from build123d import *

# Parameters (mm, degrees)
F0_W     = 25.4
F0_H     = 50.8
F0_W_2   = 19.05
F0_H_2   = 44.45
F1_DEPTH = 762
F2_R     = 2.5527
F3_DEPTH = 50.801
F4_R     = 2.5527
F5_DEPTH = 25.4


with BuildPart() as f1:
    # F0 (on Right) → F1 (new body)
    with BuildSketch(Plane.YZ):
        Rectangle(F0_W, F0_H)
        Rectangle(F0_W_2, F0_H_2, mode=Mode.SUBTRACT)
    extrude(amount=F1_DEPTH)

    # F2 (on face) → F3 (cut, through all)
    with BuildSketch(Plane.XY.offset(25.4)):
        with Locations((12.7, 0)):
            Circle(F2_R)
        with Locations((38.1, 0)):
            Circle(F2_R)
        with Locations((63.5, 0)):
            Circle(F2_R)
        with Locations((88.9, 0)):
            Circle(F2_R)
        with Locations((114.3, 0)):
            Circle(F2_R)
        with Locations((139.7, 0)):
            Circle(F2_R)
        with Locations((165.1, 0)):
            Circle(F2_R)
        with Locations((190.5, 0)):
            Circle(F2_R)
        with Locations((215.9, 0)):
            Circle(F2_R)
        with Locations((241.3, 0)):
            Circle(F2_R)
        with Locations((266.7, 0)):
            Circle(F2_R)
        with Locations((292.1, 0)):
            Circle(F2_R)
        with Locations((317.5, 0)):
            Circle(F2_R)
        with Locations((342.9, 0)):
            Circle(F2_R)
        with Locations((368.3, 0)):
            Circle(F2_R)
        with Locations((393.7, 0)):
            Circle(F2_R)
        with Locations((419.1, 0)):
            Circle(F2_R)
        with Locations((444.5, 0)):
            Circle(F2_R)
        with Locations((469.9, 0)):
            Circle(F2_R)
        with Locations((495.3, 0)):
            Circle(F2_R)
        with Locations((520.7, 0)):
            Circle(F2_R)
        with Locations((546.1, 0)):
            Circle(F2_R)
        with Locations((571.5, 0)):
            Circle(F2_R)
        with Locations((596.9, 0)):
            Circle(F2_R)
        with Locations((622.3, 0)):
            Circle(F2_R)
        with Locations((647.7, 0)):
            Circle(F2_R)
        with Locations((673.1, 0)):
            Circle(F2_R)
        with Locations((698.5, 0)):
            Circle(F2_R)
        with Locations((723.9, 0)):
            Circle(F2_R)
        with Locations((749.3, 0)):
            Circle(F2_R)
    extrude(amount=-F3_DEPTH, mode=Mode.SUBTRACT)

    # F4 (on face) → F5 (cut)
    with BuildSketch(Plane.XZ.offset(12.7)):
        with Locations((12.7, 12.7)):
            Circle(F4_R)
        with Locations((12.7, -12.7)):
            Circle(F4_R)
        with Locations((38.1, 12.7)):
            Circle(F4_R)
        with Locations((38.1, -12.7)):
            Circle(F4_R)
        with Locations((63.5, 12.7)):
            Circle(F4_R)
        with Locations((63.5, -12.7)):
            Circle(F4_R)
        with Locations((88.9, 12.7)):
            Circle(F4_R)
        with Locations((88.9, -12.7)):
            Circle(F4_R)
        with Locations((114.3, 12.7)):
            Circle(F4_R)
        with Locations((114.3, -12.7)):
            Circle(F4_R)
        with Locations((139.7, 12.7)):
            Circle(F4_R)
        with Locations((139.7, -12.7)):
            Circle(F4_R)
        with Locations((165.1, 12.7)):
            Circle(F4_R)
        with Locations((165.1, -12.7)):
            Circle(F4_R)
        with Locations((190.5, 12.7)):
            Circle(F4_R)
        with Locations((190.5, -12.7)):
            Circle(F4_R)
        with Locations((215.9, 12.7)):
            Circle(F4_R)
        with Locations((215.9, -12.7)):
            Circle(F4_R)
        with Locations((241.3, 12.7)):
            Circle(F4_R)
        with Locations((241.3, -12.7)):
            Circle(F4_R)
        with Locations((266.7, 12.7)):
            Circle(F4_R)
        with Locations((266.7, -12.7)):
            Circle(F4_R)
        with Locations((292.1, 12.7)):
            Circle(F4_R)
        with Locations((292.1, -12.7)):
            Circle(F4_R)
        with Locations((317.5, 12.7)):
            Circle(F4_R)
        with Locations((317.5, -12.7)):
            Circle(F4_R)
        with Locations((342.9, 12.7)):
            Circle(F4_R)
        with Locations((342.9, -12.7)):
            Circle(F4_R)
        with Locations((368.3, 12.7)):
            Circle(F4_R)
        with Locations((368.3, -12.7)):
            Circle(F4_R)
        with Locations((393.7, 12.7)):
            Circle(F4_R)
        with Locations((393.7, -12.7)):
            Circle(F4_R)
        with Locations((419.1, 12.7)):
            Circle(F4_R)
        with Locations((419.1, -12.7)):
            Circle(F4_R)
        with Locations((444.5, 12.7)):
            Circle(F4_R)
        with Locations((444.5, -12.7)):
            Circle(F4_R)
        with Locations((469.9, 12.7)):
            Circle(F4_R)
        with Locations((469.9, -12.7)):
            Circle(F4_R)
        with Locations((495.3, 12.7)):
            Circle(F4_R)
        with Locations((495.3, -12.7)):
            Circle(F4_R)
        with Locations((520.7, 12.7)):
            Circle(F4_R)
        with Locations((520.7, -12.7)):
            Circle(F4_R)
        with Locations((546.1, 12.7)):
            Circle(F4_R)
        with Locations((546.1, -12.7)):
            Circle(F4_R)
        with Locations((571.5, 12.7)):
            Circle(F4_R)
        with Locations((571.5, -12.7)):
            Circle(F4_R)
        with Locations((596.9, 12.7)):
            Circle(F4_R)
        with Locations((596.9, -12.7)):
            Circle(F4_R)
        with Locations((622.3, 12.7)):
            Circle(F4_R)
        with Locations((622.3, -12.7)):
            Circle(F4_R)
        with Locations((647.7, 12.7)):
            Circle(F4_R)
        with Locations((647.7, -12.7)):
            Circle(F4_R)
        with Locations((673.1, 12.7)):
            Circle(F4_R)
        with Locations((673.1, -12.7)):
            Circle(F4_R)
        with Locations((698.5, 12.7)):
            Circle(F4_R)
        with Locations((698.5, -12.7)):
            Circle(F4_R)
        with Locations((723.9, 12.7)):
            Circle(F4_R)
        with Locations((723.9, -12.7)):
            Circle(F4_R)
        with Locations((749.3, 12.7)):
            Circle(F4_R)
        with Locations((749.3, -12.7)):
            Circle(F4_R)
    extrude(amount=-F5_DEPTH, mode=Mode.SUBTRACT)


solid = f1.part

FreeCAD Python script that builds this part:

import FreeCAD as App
import Part
import Sketcher

V = App.Vector
Q = App.Units.Quantity


def add_polygon(sketch, points):
    """Adds a closed chain of lines whose ends are joined by coincident constraints."""
    first, n = sketch.GeometryCount, len(points)
    for a, b in zip(points, points[1:] + points[:1]):
        sketch.addGeometry(Part.LineSegment(App.Vector(*a, 0), App.Vector(*b, 0)), False)
    for i in range(n):
        sketch.addConstraint(Sketcher.Constraint("Coincident", first + i, 2, first + (i + 1) % n, 1))

doc = App.newDocument("Part")
params = doc.addObject("Spreadsheet::Sheet", "Params")
for row, (alias, value) in enumerate([
    ("sketch1_width", "1 in"),
    ("sketch1_height", "2 in"),
    ("sketch1_width2", "0.75 in"),
    ("sketch1_height2", "1.75 in"),
    ("pad1_length", "30 in"),
    ("sketch2_diameter", "0.201 in"),
    ("sketch3_diameter", "0.201 in"),
    ("pocket2_length", "1 in"),
], start=1):
    params.set(f"A{row}", alias)
    params.set(f"B{row}", "=" + value)
    params.setAlias(f"B{row}", alias)

body = doc.addObject("PartDesign::Body", "Body")

# Sketch on YZ plane
sketch1 = body.newObject("Sketcher::SketchObject", "Sketch")
sketch1.AttachmentSupport = (doc.getObject("YZ_Plane"), [""])
sketch1.MapMode = "FlatFace"
add_polygon(sketch1, [(-13, 25), (-13, -25), (13, -25), (13, 25)])  # lines 0-3
add_polygon(sketch1, [(10, -22), (-10, -22), (-10, 22), (10, 22)])  # lines 4-7
sketch1.addConstraint(Sketcher.Constraint("Vertical", 0))
sketch1.addConstraint(Sketcher.Constraint("Horizontal", 1))
sketch1.addConstraint(Sketcher.Constraint("Vertical", 2))
sketch1.addConstraint(Sketcher.Constraint("Horizontal", 3))
sketch1.addConstraint(Sketcher.Constraint("Horizontal", 4))
sketch1.addConstraint(Sketcher.Constraint("Vertical", 5))
sketch1.addConstraint(Sketcher.Constraint("Horizontal", 6))
sketch1.addConstraint(Sketcher.Constraint("Vertical", 7))
sketch1.addConstraint(Sketcher.Constraint("Symmetric", 0, 2, 2, 2, -1, 1))
sketch1.addConstraint(Sketcher.Constraint("Symmetric", 4, 2, 6, 2, -1, 1))
sketch1.addConstraint(Sketcher.Constraint("DistanceX", 1, 1, 1, 2, Q("1 in")))
sketch1.addConstraint(Sketcher.Constraint("DistanceY", 0, 2, 0, 1, Q("2 in")))
sketch1.addConstraint(Sketcher.Constraint("DistanceX", 4, 2, 4, 1, Q("0.75 in")))
sketch1.addConstraint(Sketcher.Constraint("DistanceY", 5, 1, 5, 2, Q("1.75 in")))
sketch1.setExpression("Constraints[18]", "Params.sketch1_width")
sketch1.setExpression("Constraints[19]", "Params.sketch1_height")
sketch1.setExpression("Constraints[20]", "Params.sketch1_width2")
sketch1.setExpression("Constraints[21]", "Params.sketch1_height2")
pad1 = body.newObject("PartDesign::Pad", "Pad")
pad1.Profile = sketch1
pad1.setExpression("Length", "Params.pad1_length")

# Sketch on XY plane
sketch2 = body.newObject("Sketcher::SketchObject", "Sketch001")
sketch2.AttachmentSupport = (doc.getObject("XY_Plane"), [""])
sketch2.MapMode = "FlatFace"
sketch2.AttachmentOffset = App.Placement(V(0, 0, 1 * 25.4), App.Rotation())
sketch2.addGeometry(Part.Circle(V(12.7, 0, 0), V(0, 0, 1), 2.6), False)
sketch2.addGeometry(Part.Circle(V(38.1, 0, 0), V(0, 0, 1), 2.6), False)
sketch2.addGeometry(Part.Circle(V(63.5, 0, 0), V(0, 0, 1), 2.6), False)
sketch2.addGeometry(Part.Circle(V(88.9, 0, 0), V(0, 0, 1), 2.6), False)
sketch2.addGeometry(Part.Circle(V(114.3, 0, 0), V(0, 0, 1), 2.6), False)
sketch2.addGeometry(Part.Circle(V(139.7, 0, 0), V(0, 0, 1), 2.6), False)
sketch2.addGeometry(Part.Circle(V(165.1, 0, 0), V(0, 0, 1), 2.6), False)
sketch2.addGeometry(Part.Circle(V(190.5, 0, 0), V(0, 0, 1), 2.6), False)
sketch2.addGeometry(Part.Circle(V(215.9, 0, 0), V(0, 0, 1), 2.6), False)
sketch2.addGeometry(Part.Circle(V(241.3, 0, 0), V(0, 0, 1), 2.6), False)
sketch2.addGeometry(Part.Circle(V(266.7, 0, 0), V(0, 0, 1), 2.6), False)
sketch2.addGeometry(Part.Circle(V(292.1, 0, 0), V(0, 0, 1), 2.6), False)
sketch2.addGeometry(Part.Circle(V(317.5, 0, 0), V(0, 0, 1), 2.6), False)
sketch2.addGeometry(Part.Circle(V(342.9, 0, 0), V(0, 0, 1), 2.6), False)
sketch2.addGeometry(Part.Circle(V(368.3, 0, 0), V(0, 0, 1), 2.6), False)
sketch2.addGeometry(Part.Circle(V(393.7, 0, 0), V(0, 0, 1), 2.6), False)
sketch2.addGeometry(Part.Circle(V(419.1, 0, 0), V(0, 0, 1), 2.6), False)
sketch2.addGeometry(Part.Circle(V(444.5, 0, 0), V(0, 0, 1), 2.6), False)
sketch2.addGeometry(Part.Circle(V(469.9, 0, 0), V(0, 0, 1), 2.6), False)
sketch2.addGeometry(Part.Circle(V(495.3, 0, 0), V(0, 0, 1), 2.6), False)
sketch2.addGeometry(Part.Circle(V(520.7, 0, 0), V(0, 0, 1), 2.6), False)
sketch2.addGeometry(Part.Circle(V(546.1, 0, 0), V(0, 0, 1), 2.6), False)
sketch2.addGeometry(Part.Circle(V(571.5, 0, 0), V(0, 0, 1), 2.6), False)
sketch2.addGeometry(Part.Circle(V(596.9, 0, 0), V(0, 0, 1), 2.6), False)
sketch2.addGeometry(Part.Circle(V(622.3, 0, 0), V(0, 0, 1), 2.6), False)
sketch2.addGeometry(Part.Circle(V(647.7, 0, 0), V(0, 0, 1), 2.6), False)
sketch2.addGeometry(Part.Circle(V(673.1, 0, 0), V(0, 0, 1), 2.6), False)
sketch2.addGeometry(Part.Circle(V(698.5, 0, 0), V(0, 0, 1), 2.6), False)
sketch2.addGeometry(Part.Circle(V(723.9, 0, 0), V(0, 0, 1), 2.6), False)
sketch2.addGeometry(Part.Circle(V(749.3, 0, 0), V(0, 0, 1), 2.6), False)
sketch2.addConstraint(Sketcher.Constraint("Equal", 0, 1))
sketch2.addConstraint(Sketcher.Constraint("Equal", 1, 2))
sketch2.addConstraint(Sketcher.Constraint("Equal", 2, 3))
sketch2.addConstraint(Sketcher.Constraint("Equal", 3, 4))
sketch2.addConstraint(Sketcher.Constraint("Equal", 4, 5))
sketch2.addConstraint(Sketcher.Constraint("Equal", 5, 6))
sketch2.addConstraint(Sketcher.Constraint("Equal", 6, 7))
sketch2.addConstraint(Sketcher.Constraint("Equal", 7, 8))
sketch2.addConstraint(Sketcher.Constraint("Equal", 8, 9))
sketch2.addConstraint(Sketcher.Constraint("Equal", 9, 10))
sketch2.addConstraint(Sketcher.Constraint("Equal", 10, 11))
sketch2.addConstraint(Sketcher.Constraint("Equal", 11, 12))
sketch2.addConstraint(Sketcher.Constraint("Equal", 12, 13))
sketch2.addConstraint(Sketcher.Constraint("Equal", 13, 14))
sketch2.addConstraint(Sketcher.Constraint("Equal", 14, 15))
sketch2.addConstraint(Sketcher.Constraint("Equal", 15, 16))
sketch2.addConstraint(Sketcher.Constraint("Equal", 16, 17))
sketch2.addConstraint(Sketcher.Constraint("Equal", 17, 18))
sketch2.addConstraint(Sketcher.Constraint("Equal", 18, 19))
sketch2.addConstraint(Sketcher.Constraint("Equal", 19, 20))
sketch2.addConstraint(Sketcher.Constraint("Equal", 20, 21))
sketch2.addConstraint(Sketcher.Constraint("Equal", 21, 22))
sketch2.addConstraint(Sketcher.Constraint("Equal", 22, 23))
sketch2.addConstraint(Sketcher.Constraint("Equal", 23, 24))
sketch2.addConstraint(Sketcher.Constraint("Equal", 24, 25))
sketch2.addConstraint(Sketcher.Constraint("Equal", 25, 26))
sketch2.addConstraint(Sketcher.Constraint("Equal", 26, 27))
sketch2.addConstraint(Sketcher.Constraint("Equal", 27, 28))
sketch2.addConstraint(Sketcher.Constraint("Equal", 28, 29))
sketch2.addConstraint(Sketcher.Constraint("PointOnObject", 0, 3, -1))
sketch2.addConstraint(Sketcher.Constraint("PointOnObject", 1, 3, -1))
sketch2.addConstraint(Sketcher.Constraint("PointOnObject", 2, 3, -1))
sketch2.addConstraint(Sketcher.Constraint("PointOnObject", 3, 3, -1))
sketch2.addConstraint(Sketcher.Constraint("PointOnObject", 4, 3, -1))
sketch2.addConstraint(Sketcher.Constraint("PointOnObject", 5, 3, -1))
sketch2.addConstraint(Sketcher.Constraint("PointOnObject", 6, 3, -1))
sketch2.addConstraint(Sketcher.Constraint("PointOnObject", 7, 3, -1))
sketch2.addConstraint(Sketcher.Constraint("PointOnObject", 8, 3, -1))
sketch2.addConstraint(Sketcher.Constraint("PointOnObject", 9, 3, -1))
sketch2.addConstraint(Sketcher.Constraint("PointOnObject", 10, 3, -1))
sketch2.addConstraint(Sketcher.Constraint("PointOnObject", 11, 3, -1))
sketch2.addConstraint(Sketcher.Constraint("PointOnObject", 12, 3, -1))
sketch2.addConstraint(Sketcher.Constraint("PointOnObject", 13, 3, -1))
sketch2.addConstraint(Sketcher.Constraint("PointOnObject", 14, 3, -1))
sketch2.addConstraint(Sketcher.Constraint("PointOnObject", 15, 3, -1))
sketch2.addConstraint(Sketcher.Constraint("PointOnObject", 16, 3, -1))
sketch2.addConstraint(Sketcher.Constraint("PointOnObject", 17, 3, -1))
sketch2.addConstraint(Sketcher.Constraint("PointOnObject", 18, 3, -1))
sketch2.addConstraint(Sketcher.Constraint("PointOnObject", 19, 3, -1))
sketch2.addConstraint(Sketcher.Constraint("PointOnObject", 20, 3, -1))
sketch2.addConstraint(Sketcher.Constraint("PointOnObject", 21, 3, -1))
sketch2.addConstraint(Sketcher.Constraint("PointOnObject", 22, 3, -1))
sketch2.addConstraint(Sketcher.Constraint("PointOnObject", 23, 3, -1))
sketch2.addConstraint(Sketcher.Constraint("PointOnObject", 24, 3, -1))
sketch2.addConstraint(Sketcher.Constraint("PointOnObject", 25, 3, -1))
sketch2.addConstraint(Sketcher.Constraint("PointOnObject", 26, 3, -1))
sketch2.addConstraint(Sketcher.Constraint("PointOnObject", 27, 3, -1))
sketch2.addConstraint(Sketcher.Constraint("PointOnObject", 28, 3, -1))
sketch2.addConstraint(Sketcher.Constraint("PointOnObject", 29, 3, -1))
sketch2.addConstraint(Sketcher.Constraint("Diameter", 0, Q("0.201 in")))
sketch2.addConstraint(Sketcher.Constraint("DistanceX", 0, 3, 1, 3, Q("1 in")))
sketch2.addConstraint(Sketcher.Constraint("DistanceX", 1, 3, 2, 3, Q("1 in")))
sketch2.addConstraint(Sketcher.Constraint("DistanceX", 2, 3, 3, 3, Q("1 in")))
sketch2.addConstraint(Sketcher.Constraint("DistanceX", 3, 3, 4, 3, Q("1 in")))
sketch2.addConstraint(Sketcher.Constraint("DistanceX", 4, 3, 5, 3, Q("1 in")))
sketch2.addConstraint(Sketcher.Constraint("DistanceX", 5, 3, 6, 3, Q("1 in")))
sketch2.addConstraint(Sketcher.Constraint("DistanceX", 6, 3, 7, 3, Q("1 in")))
sketch2.addConstraint(Sketcher.Constraint("DistanceX", 7, 3, 8, 3, Q("1 in")))
sketch2.addConstraint(Sketcher.Constraint("DistanceX", 8, 3, 9, 3, Q("1 in")))
sketch2.addConstraint(Sketcher.Constraint("DistanceX", 9, 3, 10, 3, Q("1 in")))
sketch2.addConstraint(Sketcher.Constraint("DistanceX", 10, 3, 11, 3, Q("1 in")))
sketch2.addConstraint(Sketcher.Constraint("DistanceX", 11, 3, 12, 3, Q("1 in")))
sketch2.addConstraint(Sketcher.Constraint("DistanceX", 12, 3, 13, 3, Q("1 in")))
sketch2.addConstraint(Sketcher.Constraint("DistanceX", 13, 3, 14, 3, Q("1 in")))
sketch2.addConstraint(Sketcher.Constraint("DistanceX", 14, 3, 15, 3, Q("1 in")))
sketch2.addConstraint(Sketcher.Constraint("DistanceX", 15, 3, 16, 3, Q("1 in")))
sketch2.addConstraint(Sketcher.Constraint("DistanceX", 16, 3, 17, 3, Q("1 in")))
sketch2.addConstraint(Sketcher.Constraint("DistanceX", 17, 3, 18, 3, Q("1 in")))
sketch2.addConstraint(Sketcher.Constraint("DistanceX", 18, 3, 19, 3, Q("1 in")))
sketch2.addConstraint(Sketcher.Constraint("DistanceX", 19, 3, 20, 3, Q("1 in")))
sketch2.addConstraint(Sketcher.Constraint("DistanceX", 20, 3, 21, 3, Q("1 in")))
sketch2.addConstraint(Sketcher.Constraint("DistanceX", 21, 3, 22, 3, Q("1 in")))
sketch2.addConstraint(Sketcher.Constraint("DistanceX", 22, 3, 23, 3, Q("1 in")))
sketch2.addConstraint(Sketcher.Constraint("DistanceX", 23, 3, 24, 3, Q("1 in")))
sketch2.addConstraint(Sketcher.Constraint("DistanceX", 24, 3, 25, 3, Q("1 in")))
sketch2.addConstraint(Sketcher.Constraint("DistanceX", 25, 3, 26, 3, Q("1 in")))
sketch2.addConstraint(Sketcher.Constraint("DistanceX", 26, 3, 27, 3, Q("1 in")))
sketch2.addConstraint(Sketcher.Constraint("DistanceX", 27, 3, 28, 3, Q("1 in")))
sketch2.addConstraint(Sketcher.Constraint("DistanceX", 28, 3, 29, 3, Q("1 in")))
sketch2.addConstraint(Sketcher.Constraint("DistanceX", -1, 1, 0, 3, Q("0.5 in")))
sketch2.setExpression("Constraints[59]", "Params.sketch2_diameter")
pocket1 = body.newObject("PartDesign::Pocket", "Pocket")
pocket1.Profile = sketch2
pocket1.Type = "ThroughAll"

# Sketch on XZ plane
sketch3 = body.newObject("Sketcher::SketchObject", "Sketch002")
sketch3.AttachmentSupport = (doc.getObject("XZ_Plane"), [""])
sketch3.MapMode = "FlatFace"
sketch3.AttachmentOffset = App.Placement(V(0, 0, 0.5 * 25.4), App.Rotation())
sketch3.addGeometry(Part.Circle(V(12.7, 12.7, 0), V(0, 0, 1), 2.6), False)
sketch3.addGeometry(Part.Circle(V(12.7, -12.7, 0), V(0, 0, 1), 2.6), False)
sketch3.addGeometry(Part.Circle(V(38.1, 12.7, 0), V(0, 0, 1), 2.6), False)
sketch3.addGeometry(Part.Circle(V(38.1, -12.7, 0), V(0, 0, 1), 2.6), False)
sketch3.addGeometry(Part.Circle(V(63.5, 12.7, 0), V(0, 0, 1), 2.6), False)
sketch3.addGeometry(Part.Circle(V(63.5, -12.7, 0), V(0, 0, 1), 2.6), False)
sketch3.addGeometry(Part.Circle(V(88.9, 12.7, 0), V(0, 0, 1), 2.6), False)
sketch3.addGeometry(Part.Circle(V(88.9, -12.7, 0), V(0, 0, 1), 2.6), False)
sketch3.addGeometry(Part.Circle(V(114.3, 12.7, 0), V(0, 0, 1), 2.6), False)
sketch3.addGeometry(Part.Circle(V(114.3, -12.7, 0), V(0, 0, 1), 2.6), False)
sketch3.addGeometry(Part.Circle(V(139.7, 12.7, 0), V(0, 0, 1), 2.6), False)
sketch3.addGeometry(Part.Circle(V(139.7, -12.7, 0), V(0, 0, 1), 2.6), False)
sketch3.addGeometry(Part.Circle(V(165.1, 12.7, 0), V(0, 0, 1), 2.6), False)
sketch3.addGeometry(Part.Circle(V(165.1, -12.7, 0), V(0, 0, 1), 2.6), False)
sketch3.addGeometry(Part.Circle(V(190.5, 12.7, 0), V(0, 0, 1), 2.6), False)
sketch3.addGeometry(Part.Circle(V(190.5, -12.7, 0), V(0, 0, 1), 2.6), False)
sketch3.addGeometry(Part.Circle(V(215.9, 12.7, 0), V(0, 0, 1), 2.6), False)
sketch3.addGeometry(Part.Circle(V(215.9, -12.7, 0), V(0, 0, 1), 2.6), False)
sketch3.addGeometry(Part.Circle(V(241.3, 12.7, 0), V(0, 0, 1), 2.6), False)
sketch3.addGeometry(Part.Circle(V(241.3, -12.7, 0), V(0, 0, 1), 2.6), False)
sketch3.addGeometry(Part.Circle(V(266.7, 12.7, 0), V(0, 0, 1), 2.6), False)
sketch3.addGeometry(Part.Circle(V(266.7, -12.7, 0), V(0, 0, 1), 2.6), False)
sketch3.addGeometry(Part.Circle(V(292.1, 12.7, 0), V(0, 0, 1), 2.6), False)
sketch3.addGeometry(Part.Circle(V(292.1, -12.7, 0), V(0, 0, 1), 2.6), False)
sketch3.addGeometry(Part.Circle(V(317.5, 12.7, 0), V(0, 0, 1), 2.6), False)
sketch3.addGeometry(Part.Circle(V(317.5, -12.7, 0), V(0, 0, 1), 2.6), False)
sketch3.addGeometry(Part.Circle(V(342.9, 12.7, 0), V(0, 0, 1), 2.6), False)
sketch3.addGeometry(Part.Circle(V(342.9, -12.7, 0), V(0, 0, 1), 2.6), False)
sketch3.addGeometry(Part.Circle(V(368.3, 12.7, 0), V(0, 0, 1), 2.6), False)
sketch3.addGeometry(Part.Circle(V(368.3, -12.7, 0), V(0, 0, 1), 2.6), False)
sketch3.addGeometry(Part.Circle(V(393.7, 12.7, 0), V(0, 0, 1), 2.6), False)
sketch3.addGeometry(Part.Circle(V(393.7, -12.7, 0), V(0, 0, 1), 2.6), False)
sketch3.addGeometry(Part.Circle(V(419.1, 12.7, 0), V(0, 0, 1), 2.6), False)
sketch3.addGeometry(Part.Circle(V(419.1, -12.7, 0), V(0, 0, 1), 2.6), False)
sketch3.addGeometry(Part.Circle(V(444.5, 12.7, 0), V(0, 0, 1), 2.6), False)
sketch3.addGeometry(Part.Circle(V(444.5, -12.7, 0), V(0, 0, 1), 2.6), False)
sketch3.addGeometry(Part.Circle(V(469.9, 12.7, 0), V(0, 0, 1), 2.6), False)
sketch3.addGeometry(Part.Circle(V(469.9, -12.7, 0), V(0, 0, 1), 2.6), False)
sketch3.addGeometry(Part.Circle(V(495.3, 12.7, 0), V(0, 0, 1), 2.6), False)
sketch3.addGeometry(Part.Circle(V(495.3, -12.7, 0), V(0, 0, 1), 2.6), False)
sketch3.addGeometry(Part.Circle(V(520.7, 12.7, 0), V(0, 0, 1), 2.6), False)
sketch3.addGeometry(Part.Circle(V(520.7, -12.7, 0), V(0, 0, 1), 2.6), False)
sketch3.addGeometry(Part.Circle(V(546.1, 12.7, 0), V(0, 0, 1), 2.6), False)
sketch3.addGeometry(Part.Circle(V(546.1, -12.7, 0), V(0, 0, 1), 2.6), False)
sketch3.addGeometry(Part.Circle(V(571.5, 12.7, 0), V(0, 0, 1), 2.6), False)
sketch3.addGeometry(Part.Circle(V(571.5, -12.7, 0), V(0, 0, 1), 2.6), False)
sketch3.addGeometry(Part.Circle(V(596.9, 12.7, 0), V(0, 0, 1), 2.6), False)
sketch3.addGeometry(Part.Circle(V(596.9, -12.7, 0), V(0, 0, 1), 2.6), False)
sketch3.addGeometry(Part.Circle(V(622.3, 12.7, 0), V(0, 0, 1), 2.6), False)
sketch3.addGeometry(Part.Circle(V(622.3, -12.7, 0), V(0, 0, 1), 2.6), False)
sketch3.addGeometry(Part.Circle(V(647.7, 12.7, 0), V(0, 0, 1), 2.6), False)
sketch3.addGeometry(Part.Circle(V(647.7, -12.7, 0), V(0, 0, 1), 2.6), False)
sketch3.addGeometry(Part.Circle(V(673.1, 12.7, 0), V(0, 0, 1), 2.6), False)
sketch3.addGeometry(Part.Circle(V(673.1, -12.7, 0), V(0, 0, 1), 2.6), False)
sketch3.addGeometry(Part.Circle(V(698.5, 12.7, 0), V(0, 0, 1), 2.6), False)
sketch3.addGeometry(Part.Circle(V(698.5, -12.7, 0), V(0, 0, 1), 2.6), False)
sketch3.addGeometry(Part.Circle(V(723.9, 12.7, 0), V(0, 0, 1), 2.6), False)
sketch3.addGeometry(Part.Circle(V(723.9, -12.7, 0), V(0, 0, 1), 2.6), False)
sketch3.addGeometry(Part.Circle(V(749.3, 12.7, 0), V(0, 0, 1), 2.6), False)
sketch3.addGeometry(Part.Circle(V(749.3, -12.7, 0), V(0, 0, 1), 2.6), False)
sketch3.addConstraint(Sketcher.Constraint("Equal", 0, 1))
sketch3.addConstraint(Sketcher.Constraint("Equal", 1, 2))
sketch3.addConstraint(Sketcher.Constraint("Equal", 2, 3))
sketch3.addConstraint(Sketcher.Constraint("Equal", 3, 4))
sketch3.addConstraint(Sketcher.Constraint("Equal", 4, 5))
sketch3.addConstraint(Sketcher.Constraint("Equal", 5, 6))
sketch3.addConstraint(Sketcher.Constraint("Equal", 6, 7))
sketch3.addConstraint(Sketcher.Constraint("Equal", 7, 8))
sketch3.addConstraint(Sketcher.Constraint("Equal", 8, 9))
sketch3.addConstraint(Sketcher.Constraint("Equal", 9, 10))
sketch3.addConstraint(Sketcher.Constraint("Equal", 10, 11))
sketch3.addConstraint(Sketcher.Constraint("Equal", 11, 12))
sketch3.addConstraint(Sketcher.Constraint("Equal", 12, 13))
sketch3.addConstraint(Sketcher.Constraint("Equal", 13, 14))
sketch3.addConstraint(Sketcher.Constraint("Equal", 14, 15))
sketch3.addConstraint(Sketcher.Constraint("Equal", 15, 16))
sketch3.addConstraint(Sketcher.Constraint("Equal", 16, 17))
sketch3.addConstraint(Sketcher.Constraint("Equal", 17, 18))
sketch3.addConstraint(Sketcher.Constraint("Equal", 18, 19))
sketch3.addConstraint(Sketcher.Constraint("Equal", 19, 20))
sketch3.addConstraint(Sketcher.Constraint("Equal", 20, 21))
sketch3.addConstraint(Sketcher.Constraint("Equal", 21, 22))
sketch3.addConstraint(Sketcher.Constraint("Equal", 22, 23))
sketch3.addConstraint(Sketcher.Constraint("Equal", 23, 24))
sketch3.addConstraint(Sketcher.Constraint("Equal", 24, 25))
sketch3.addConstraint(Sketcher.Constraint("Equal", 25, 26))
sketch3.addConstraint(Sketcher.Constraint("Equal", 26, 27))
sketch3.addConstraint(Sketcher.Constraint("Equal", 27, 28))
sketch3.addConstraint(Sketcher.Constraint("Equal", 28, 29))
sketch3.addConstraint(Sketcher.Constraint("Equal", 29, 30))
sketch3.addConstraint(Sketcher.Constraint("Equal", 30, 31))
sketch3.addConstraint(Sketcher.Constraint("Equal", 31, 32))
sketch3.addConstraint(Sketcher.Constraint("Equal", 32, 33))
sketch3.addConstraint(Sketcher.Constraint("Equal", 33, 34))
sketch3.addConstraint(Sketcher.Constraint("Equal", 34, 35))
sketch3.addConstraint(Sketcher.Constraint("Equal", 35, 36))
sketch3.addConstraint(Sketcher.Constraint("Equal", 36, 37))
sketch3.addConstraint(Sketcher.Constraint("Equal", 37, 38))
sketch3.addConstraint(Sketcher.Constraint("Equal", 38, 39))
sketch3.addConstraint(Sketcher.Constraint("Equal", 39, 40))
sketch3.addConstraint(Sketcher.Constraint("Equal", 40, 41))
sketch3.addConstraint(Sketcher.Constraint("Equal", 41, 42))
sketch3.addConstraint(Sketcher.Constraint("Equal", 42, 43))
sketch3.addConstraint(Sketcher.Constraint("Equal", 43, 44))
sketch3.addConstraint(Sketcher.Constraint("Equal", 44, 45))
sketch3.addConstraint(Sketcher.Constraint("Equal", 45, 46))
sketch3.addConstraint(Sketcher.Constraint("Equal", 46, 47))
sketch3.addConstraint(Sketcher.Constraint("Equal", 47, 48))
sketch3.addConstraint(Sketcher.Constraint("Equal", 48, 49))
sketch3.addConstraint(Sketcher.Constraint("Equal", 49, 50))
sketch3.addConstraint(Sketcher.Constraint("Equal", 50, 51))
sketch3.addConstraint(Sketcher.Constraint("Equal", 51, 52))
sketch3.addConstraint(Sketcher.Constraint("Equal", 52, 53))
sketch3.addConstraint(Sketcher.Constraint("Equal", 53, 54))
sketch3.addConstraint(Sketcher.Constraint("Equal", 54, 55))
sketch3.addConstraint(Sketcher.Constraint("Equal", 55, 56))
sketch3.addConstraint(Sketcher.Constraint("Equal", 56, 57))
sketch3.addConstraint(Sketcher.Constraint("Equal", 57, 58))
sketch3.addConstraint(Sketcher.Constraint("Equal", 58, 59))
sketch3.addConstraint(Sketcher.Constraint("Symmetric", 0, 3, 1, 3, -1))
sketch3.addConstraint(Sketcher.Constraint("Symmetric", 2, 3, 3, 3, -1))
sketch3.addConstraint(Sketcher.Constraint("Symmetric", 4, 3, 5, 3, -1))
sketch3.addConstraint(Sketcher.Constraint("Symmetric", 6, 3, 7, 3, -1))
sketch3.addConstraint(Sketcher.Constraint("Symmetric", 8, 3, 9, 3, -1))
sketch3.addConstraint(Sketcher.Constraint("Symmetric", 10, 3, 11, 3, -1))
sketch3.addConstraint(Sketcher.Constraint("Symmetric", 12, 3, 13, 3, -1))
sketch3.addConstraint(Sketcher.Constraint("Symmetric", 14, 3, 15, 3, -1))
sketch3.addConstraint(Sketcher.Constraint("Symmetric", 16, 3, 17, 3, -1))
sketch3.addConstraint(Sketcher.Constraint("Symmetric", 18, 3, 19, 3, -1))
sketch3.addConstraint(Sketcher.Constraint("Symmetric", 20, 3, 21, 3, -1))
sketch3.addConstraint(Sketcher.Constraint("Symmetric", 22, 3, 23, 3, -1))
sketch3.addConstraint(Sketcher.Constraint("Symmetric", 24, 3, 25, 3, -1))
sketch3.addConstraint(Sketcher.Constraint("Symmetric", 26, 3, 27, 3, -1))
sketch3.addConstraint(Sketcher.Constraint("Symmetric", 28, 3, 29, 3, -1))
sketch3.addConstraint(Sketcher.Constraint("Symmetric", 30, 3, 31, 3, -1))
sketch3.addConstraint(Sketcher.Constraint("Symmetric", 32, 3, 33, 3, -1))
sketch3.addConstraint(Sketcher.Constraint("Symmetric", 34, 3, 35, 3, -1))
sketch3.addConstraint(Sketcher.Constraint("Symmetric", 36, 3, 37, 3, -1))
sketch3.addConstraint(Sketcher.Constraint("Symmetric", 38, 3, 39, 3, -1))
sketch3.addConstraint(Sketcher.Constraint("Symmetric", 40, 3, 41, 3, -1))
sketch3.addConstraint(Sketcher.Constraint("Symmetric", 42, 3, 43, 3, -1))
sketch3.addConstraint(Sketcher.Constraint("Symmetric", 44, 3, 45, 3, -1))
sketch3.addConstraint(Sketcher.Constraint("Symmetric", 46, 3, 47, 3, -1))
sketch3.addConstraint(Sketcher.Constraint("Symmetric", 48, 3, 49, 3, -1))
sketch3.addConstraint(Sketcher.Constraint("Symmetric", 50, 3, 51, 3, -1))
sketch3.addConstraint(Sketcher.Constraint("Symmetric", 52, 3, 53, 3, -1))
sketch3.addConstraint(Sketcher.Constraint("Symmetric", 54, 3, 55, 3, -1))
sketch3.addConstraint(Sketcher.Constraint("Symmetric", 56, 3, 57, 3, -1))
sketch3.addConstraint(Sketcher.Constraint("Symmetric", 58, 3, 59, 3, -1))
sketch3.addConstraint(Sketcher.Constraint("Horizontal", 0, 3, 2, 3))
sketch3.addConstraint(Sketcher.Constraint("Horizontal", 2, 3, 4, 3))
sketch3.addConstraint(Sketcher.Constraint("Horizontal", 4, 3, 6, 3))
sketch3.addConstraint(Sketcher.Constraint("Horizontal", 6, 3, 8, 3))
sketch3.addConstraint(Sketcher.Constraint("Horizontal", 8, 3, 10, 3))
sketch3.addConstraint(Sketcher.Constraint("Horizontal", 10, 3, 12, 3))
sketch3.addConstraint(Sketcher.Constraint("Horizontal", 12, 3, 14, 3))
sketch3.addConstraint(Sketcher.Constraint("Horizontal", 14, 3, 16, 3))
sketch3.addConstraint(Sketcher.Constraint("Horizontal", 16, 3, 18, 3))
sketch3.addConstraint(Sketcher.Constraint("Horizontal", 18, 3, 20, 3))
sketch3.addConstraint(Sketcher.Constraint("Horizontal", 20, 3, 22, 3))
sketch3.addConstraint(Sketcher.Constraint("Horizontal", 22, 3, 24, 3))
sketch3.addConstraint(Sketcher.Constraint("Horizontal", 24, 3, 26, 3))
sketch3.addConstraint(Sketcher.Constraint("Horizontal", 26, 3, 28, 3))
sketch3.addConstraint(Sketcher.Constraint("Horizontal", 28, 3, 30, 3))
sketch3.addConstraint(Sketcher.Constraint("Horizontal", 30, 3, 32, 3))
sketch3.addConstraint(Sketcher.Constraint("Horizontal", 32, 3, 34, 3))
sketch3.addConstraint(Sketcher.Constraint("Horizontal", 34, 3, 36, 3))
sketch3.addConstraint(Sketcher.Constraint("Horizontal", 36, 3, 38, 3))
sketch3.addConstraint(Sketcher.Constraint("Horizontal", 38, 3, 40, 3))
sketch3.addConstraint(Sketcher.Constraint("Horizontal", 40, 3, 42, 3))
sketch3.addConstraint(Sketcher.Constraint("Horizontal", 42, 3, 44, 3))
sketch3.addConstraint(Sketcher.Constraint("Horizontal", 44, 3, 46, 3))
sketch3.addConstraint(Sketcher.Constraint("Horizontal", 46, 3, 48, 3))
sketch3.addConstraint(Sketcher.Constraint("Horizontal", 48, 3, 50, 3))
sketch3.addConstraint(Sketcher.Constraint("Horizontal", 50, 3, 52, 3))
sketch3.addConstraint(Sketcher.Constraint("Horizontal", 52, 3, 54, 3))
sketch3.addConstraint(Sketcher.Constraint("Horizontal", 54, 3, 56, 3))
sketch3.addConstraint(Sketcher.Constraint("Horizontal", 56, 3, 58, 3))
sketch3.addConstraint(Sketcher.Constraint("Diameter", 0, Q("0.201 in")))
sketch3.addConstraint(Sketcher.Constraint("DistanceY", 1, 3, 0, 3, Q("1 in")))
sketch3.addConstraint(Sketcher.Constraint("DistanceX", 0, 3, 2, 3, Q("1 in")))
sketch3.addConstraint(Sketcher.Constraint("DistanceX", 2, 3, 4, 3, Q("1 in")))
sketch3.addConstraint(Sketcher.Constraint("DistanceX", 4, 3, 6, 3, Q("1 in")))
sketch3.addConstraint(Sketcher.Constraint("DistanceX", 6, 3, 8, 3, Q("1 in")))
sketch3.addConstraint(Sketcher.Constraint("DistanceX", 8, 3, 10, 3, Q("1 in")))
sketch3.addConstraint(Sketcher.Constraint("DistanceX", 10, 3, 12, 3, Q("1 in")))
sketch3.addConstraint(Sketcher.Constraint("DistanceX", 12, 3, 14, 3, Q("1 in")))
sketch3.addConstraint(Sketcher.Constraint("DistanceX", 14, 3, 16, 3, Q("1 in")))
sketch3.addConstraint(Sketcher.Constraint("DistanceX", 16, 3, 18, 3, Q("1 in")))
sketch3.addConstraint(Sketcher.Constraint("DistanceX", 18, 3, 20, 3, Q("1 in")))
sketch3.addConstraint(Sketcher.Constraint("DistanceX", 20, 3, 22, 3, Q("1 in")))
sketch3.addConstraint(Sketcher.Constraint("DistanceX", 22, 3, 24, 3, Q("1 in")))
sketch3.addConstraint(Sketcher.Constraint("DistanceX", 24, 3, 26, 3, Q("1 in")))
sketch3.addConstraint(Sketcher.Constraint("DistanceX", 26, 3, 28, 3, Q("1 in")))
sketch3.addConstraint(Sketcher.Constraint("DistanceX", 28, 3, 30, 3, Q("1 in")))
sketch3.addConstraint(Sketcher.Constraint("DistanceX", 30, 3, 32, 3, Q("1 in")))
sketch3.addConstraint(Sketcher.Constraint("DistanceX", 32, 3, 34, 3, Q("1 in")))
sketch3.addConstraint(Sketcher.Constraint("DistanceX", 34, 3, 36, 3, Q("1 in")))
sketch3.addConstraint(Sketcher.Constraint("DistanceX", 36, 3, 38, 3, Q("1 in")))
sketch3.addConstraint(Sketcher.Constraint("DistanceX", 38, 3, 40, 3, Q("1 in")))
sketch3.addConstraint(Sketcher.Constraint("DistanceX", 40, 3, 42, 3, Q("1 in")))
sketch3.addConstraint(Sketcher.Constraint("DistanceX", 42, 3, 44, 3, Q("1 in")))
sketch3.addConstraint(Sketcher.Constraint("DistanceX", 44, 3, 46, 3, Q("1 in")))
sketch3.addConstraint(Sketcher.Constraint("DistanceX", 46, 3, 48, 3, Q("1 in")))
sketch3.addConstraint(Sketcher.Constraint("DistanceX", 48, 3, 50, 3, Q("1 in")))
sketch3.addConstraint(Sketcher.Constraint("DistanceX", 50, 3, 52, 3, Q("1 in")))
sketch3.addConstraint(Sketcher.Constraint("DistanceX", 52, 3, 54, 3, Q("1 in")))
sketch3.addConstraint(Sketcher.Constraint("DistanceX", 54, 3, 56, 3, Q("1 in")))
sketch3.addConstraint(Sketcher.Constraint("DistanceX", 56, 3, 58, 3, Q("1 in")))
sketch3.addConstraint(Sketcher.Constraint("DistanceX", -1, 1, 0, 3, Q("0.5 in")))
sketch3.setExpression("Constraints[118]", "Params.sketch3_diameter")
pocket2 = body.newObject("PartDesign::Pocket", "Pocket001")
pocket2.Profile = sketch3
pocket2.setExpression("Length", "Params.pocket2_length")

doc.recompute()
